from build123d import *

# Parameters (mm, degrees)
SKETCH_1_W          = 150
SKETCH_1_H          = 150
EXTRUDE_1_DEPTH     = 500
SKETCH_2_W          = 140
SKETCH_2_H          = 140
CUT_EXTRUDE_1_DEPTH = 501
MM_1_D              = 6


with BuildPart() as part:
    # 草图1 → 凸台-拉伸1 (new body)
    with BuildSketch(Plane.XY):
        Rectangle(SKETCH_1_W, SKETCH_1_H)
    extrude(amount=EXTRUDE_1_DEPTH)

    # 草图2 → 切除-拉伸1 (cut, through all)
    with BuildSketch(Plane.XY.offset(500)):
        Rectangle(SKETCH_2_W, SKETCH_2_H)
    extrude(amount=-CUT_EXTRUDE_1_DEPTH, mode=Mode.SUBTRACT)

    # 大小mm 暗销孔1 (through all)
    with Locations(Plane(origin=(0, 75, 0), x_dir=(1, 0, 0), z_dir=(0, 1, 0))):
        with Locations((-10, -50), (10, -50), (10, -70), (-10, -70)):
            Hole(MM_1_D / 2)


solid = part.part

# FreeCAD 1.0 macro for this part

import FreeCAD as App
import Part
import Sketcher
from FreeCAD import Vector

doc = App.newDocument("Part")
body = doc.addObject("PartDesign::Body", "Body")

sketch1 = body.newObject("Sketcher::SketchObject", "Sketch")
sketch1.AttachmentSupport = (doc.getObject("XY_Plane"), [""])
sketch1.MapMode = "FlatFace"
sketch1.addGeometry([
    Part.LineSegment(Vector(-75, 75, 0), Vector(-75, -75, 0)),
    Part.LineSegment(Vector(-75, -75, 0), Vector(75, -75, 0)),
    Part.LineSegment(Vector(75, -75, 0), Vector(75, 75, 0)),
    Part.LineSegment(Vector(75, 75, 0), Vector(-75, 75, 0)),
], False)
sketch1.addConstraint([
    Sketcher.Constraint("Coincident", 0, 2, 1, 1),
    Sketcher.Constraint("Coincident", 1, 2, 2, 1),
    Sketcher.Constraint("Coincident", 2, 2, 3, 1),
    Sketcher.Constraint("Coincident", 3, 2, 0, 1),
    Sketcher.Constraint("Vertical", 0),
    Sketcher.Constraint("Horizontal", 1),
    Sketcher.Constraint("Vertical", 2),
    Sketcher.Constraint("Horizontal", 3),
    Sketcher.Constraint("Symmetric", 0, 2, 2, 2, -1, 1),
    Sketcher.Constraint("Equal", 3, 0),
    Sketcher.Constraint("DistanceX", 1, 1, 1, 2, 150.0),
])
pad1 = body.newObject("PartDesign::Pad", "Pad")
pad1.Profile = sketch1
pad1.Length = 500

sketch2 = body.newObject("Sketcher::SketchObject", "Sketch001")
sketch2.AttachmentSupport = (doc.getObject("XY_Plane"), [""])
sketch2.MapMode = "FlatFace"
sketch2.AttachmentOffset = App.Placement(Vector(0, 0, 500), App.Rotation())
sketch2.addGeometry([
    Part.LineSegment(Vector(-70, 70, 0), Vector(-70, -70, 0)),
    Part.LineSegment(Vector(-70, -70, 0), Vector(70, -70, 0)),
    Part.LineSegment(Vector(70, -70, 0), Vector(70, 70, 0)),
    Part.LineSegment(Vector(70, 70, 0), Vector(-70, 70, 0)),
], False)
sketch2.addConstraint([
    Sketcher.Constraint("Coincident", 0, 2, 1, 1),
    Sketcher.Constraint("Coincident", 1, 2, 2, 1),
    Sketcher.Constraint("Coincident", 2, 2, 3, 1),
    Sketcher.Constraint("Coincident", 3, 2, 0, 1),
    Sketcher.Constraint("Vertical", 0),
    Sketcher.Constraint("Horizontal", 1),
    Sketcher.Constraint("Vertical", 2),
    Sketcher.Constraint("Horizontal", 3),
    Sketcher.Constraint("Symmetric", 0, 2, 2, 2, -1, 1),
    Sketcher.Constraint("Equal", 3, 0),
    Sketcher.Constraint("DistanceX", 1, 1, 1, 2, 140.0),
])
pocket1 = body.newObject("PartDesign::Pocket", "Pocket")
pocket1.Profile = sketch2
pocket1.Type = "ThroughAll"

sketch3 = body.newObject("Sketcher::SketchObject", "Sketch002")
sketch3.AttachmentSupport = (doc.getObject("XZ_Plane"), [""])
sketch3.MapMode = "FlatFace"
sketch3.AttachmentOffset = App.Placement(Vector(0, 0, -75), App.Rotation())
sketch3.addGeometry([
    Part.Circle(Vector(-10, 50, 0), Vector(0, 0, 1), 3),
    Part.Circle(Vector(10, 50, 0), Vector(0, 0, 1), 3),
    Part.Circle(Vector(10, 70, 0), Vector(0, 0, 1), 3),
    Part.Circle(Vector(-10, 70, 0), Vector(0, 0, 1), 3),
], False)
sketch3.addConstraint([
    Sketcher.Constraint("Equal", 0, 1),
    Sketcher.Constraint("Equal", 1, 2),
    Sketcher.Constraint("Equal", 2, 3),
    Sketcher.Constraint("Symmetric", 0, 3, 1, 3, -2),
    Sketcher.Constraint("Symmetric", 2, 3, 3, 3, -2),
    Sketcher.Constraint("Vertical", 1, 3, 2, 3),
    Sketcher.Constraint("Diameter", 0, 6.0),
    Sketcher.Constraint("DistanceX", 0, 3, -1, 1, 10.0),
    Sketcher.Constraint("DistanceY", -1, 1, 0, 3, 50.0),
    Sketcher.Constraint("DistanceY", -1, 1, 2, 3, 70.0),
])
doc.recompute()
hole = body.newObject("PartDesign::Hole", "Hole")
hole.Profile = sketch3
hole.ThreadType = "None"
hole.Diameter = 6
hole.DepthType = "ThroughAll"
hole.Reversed = True

doc.recompute()
